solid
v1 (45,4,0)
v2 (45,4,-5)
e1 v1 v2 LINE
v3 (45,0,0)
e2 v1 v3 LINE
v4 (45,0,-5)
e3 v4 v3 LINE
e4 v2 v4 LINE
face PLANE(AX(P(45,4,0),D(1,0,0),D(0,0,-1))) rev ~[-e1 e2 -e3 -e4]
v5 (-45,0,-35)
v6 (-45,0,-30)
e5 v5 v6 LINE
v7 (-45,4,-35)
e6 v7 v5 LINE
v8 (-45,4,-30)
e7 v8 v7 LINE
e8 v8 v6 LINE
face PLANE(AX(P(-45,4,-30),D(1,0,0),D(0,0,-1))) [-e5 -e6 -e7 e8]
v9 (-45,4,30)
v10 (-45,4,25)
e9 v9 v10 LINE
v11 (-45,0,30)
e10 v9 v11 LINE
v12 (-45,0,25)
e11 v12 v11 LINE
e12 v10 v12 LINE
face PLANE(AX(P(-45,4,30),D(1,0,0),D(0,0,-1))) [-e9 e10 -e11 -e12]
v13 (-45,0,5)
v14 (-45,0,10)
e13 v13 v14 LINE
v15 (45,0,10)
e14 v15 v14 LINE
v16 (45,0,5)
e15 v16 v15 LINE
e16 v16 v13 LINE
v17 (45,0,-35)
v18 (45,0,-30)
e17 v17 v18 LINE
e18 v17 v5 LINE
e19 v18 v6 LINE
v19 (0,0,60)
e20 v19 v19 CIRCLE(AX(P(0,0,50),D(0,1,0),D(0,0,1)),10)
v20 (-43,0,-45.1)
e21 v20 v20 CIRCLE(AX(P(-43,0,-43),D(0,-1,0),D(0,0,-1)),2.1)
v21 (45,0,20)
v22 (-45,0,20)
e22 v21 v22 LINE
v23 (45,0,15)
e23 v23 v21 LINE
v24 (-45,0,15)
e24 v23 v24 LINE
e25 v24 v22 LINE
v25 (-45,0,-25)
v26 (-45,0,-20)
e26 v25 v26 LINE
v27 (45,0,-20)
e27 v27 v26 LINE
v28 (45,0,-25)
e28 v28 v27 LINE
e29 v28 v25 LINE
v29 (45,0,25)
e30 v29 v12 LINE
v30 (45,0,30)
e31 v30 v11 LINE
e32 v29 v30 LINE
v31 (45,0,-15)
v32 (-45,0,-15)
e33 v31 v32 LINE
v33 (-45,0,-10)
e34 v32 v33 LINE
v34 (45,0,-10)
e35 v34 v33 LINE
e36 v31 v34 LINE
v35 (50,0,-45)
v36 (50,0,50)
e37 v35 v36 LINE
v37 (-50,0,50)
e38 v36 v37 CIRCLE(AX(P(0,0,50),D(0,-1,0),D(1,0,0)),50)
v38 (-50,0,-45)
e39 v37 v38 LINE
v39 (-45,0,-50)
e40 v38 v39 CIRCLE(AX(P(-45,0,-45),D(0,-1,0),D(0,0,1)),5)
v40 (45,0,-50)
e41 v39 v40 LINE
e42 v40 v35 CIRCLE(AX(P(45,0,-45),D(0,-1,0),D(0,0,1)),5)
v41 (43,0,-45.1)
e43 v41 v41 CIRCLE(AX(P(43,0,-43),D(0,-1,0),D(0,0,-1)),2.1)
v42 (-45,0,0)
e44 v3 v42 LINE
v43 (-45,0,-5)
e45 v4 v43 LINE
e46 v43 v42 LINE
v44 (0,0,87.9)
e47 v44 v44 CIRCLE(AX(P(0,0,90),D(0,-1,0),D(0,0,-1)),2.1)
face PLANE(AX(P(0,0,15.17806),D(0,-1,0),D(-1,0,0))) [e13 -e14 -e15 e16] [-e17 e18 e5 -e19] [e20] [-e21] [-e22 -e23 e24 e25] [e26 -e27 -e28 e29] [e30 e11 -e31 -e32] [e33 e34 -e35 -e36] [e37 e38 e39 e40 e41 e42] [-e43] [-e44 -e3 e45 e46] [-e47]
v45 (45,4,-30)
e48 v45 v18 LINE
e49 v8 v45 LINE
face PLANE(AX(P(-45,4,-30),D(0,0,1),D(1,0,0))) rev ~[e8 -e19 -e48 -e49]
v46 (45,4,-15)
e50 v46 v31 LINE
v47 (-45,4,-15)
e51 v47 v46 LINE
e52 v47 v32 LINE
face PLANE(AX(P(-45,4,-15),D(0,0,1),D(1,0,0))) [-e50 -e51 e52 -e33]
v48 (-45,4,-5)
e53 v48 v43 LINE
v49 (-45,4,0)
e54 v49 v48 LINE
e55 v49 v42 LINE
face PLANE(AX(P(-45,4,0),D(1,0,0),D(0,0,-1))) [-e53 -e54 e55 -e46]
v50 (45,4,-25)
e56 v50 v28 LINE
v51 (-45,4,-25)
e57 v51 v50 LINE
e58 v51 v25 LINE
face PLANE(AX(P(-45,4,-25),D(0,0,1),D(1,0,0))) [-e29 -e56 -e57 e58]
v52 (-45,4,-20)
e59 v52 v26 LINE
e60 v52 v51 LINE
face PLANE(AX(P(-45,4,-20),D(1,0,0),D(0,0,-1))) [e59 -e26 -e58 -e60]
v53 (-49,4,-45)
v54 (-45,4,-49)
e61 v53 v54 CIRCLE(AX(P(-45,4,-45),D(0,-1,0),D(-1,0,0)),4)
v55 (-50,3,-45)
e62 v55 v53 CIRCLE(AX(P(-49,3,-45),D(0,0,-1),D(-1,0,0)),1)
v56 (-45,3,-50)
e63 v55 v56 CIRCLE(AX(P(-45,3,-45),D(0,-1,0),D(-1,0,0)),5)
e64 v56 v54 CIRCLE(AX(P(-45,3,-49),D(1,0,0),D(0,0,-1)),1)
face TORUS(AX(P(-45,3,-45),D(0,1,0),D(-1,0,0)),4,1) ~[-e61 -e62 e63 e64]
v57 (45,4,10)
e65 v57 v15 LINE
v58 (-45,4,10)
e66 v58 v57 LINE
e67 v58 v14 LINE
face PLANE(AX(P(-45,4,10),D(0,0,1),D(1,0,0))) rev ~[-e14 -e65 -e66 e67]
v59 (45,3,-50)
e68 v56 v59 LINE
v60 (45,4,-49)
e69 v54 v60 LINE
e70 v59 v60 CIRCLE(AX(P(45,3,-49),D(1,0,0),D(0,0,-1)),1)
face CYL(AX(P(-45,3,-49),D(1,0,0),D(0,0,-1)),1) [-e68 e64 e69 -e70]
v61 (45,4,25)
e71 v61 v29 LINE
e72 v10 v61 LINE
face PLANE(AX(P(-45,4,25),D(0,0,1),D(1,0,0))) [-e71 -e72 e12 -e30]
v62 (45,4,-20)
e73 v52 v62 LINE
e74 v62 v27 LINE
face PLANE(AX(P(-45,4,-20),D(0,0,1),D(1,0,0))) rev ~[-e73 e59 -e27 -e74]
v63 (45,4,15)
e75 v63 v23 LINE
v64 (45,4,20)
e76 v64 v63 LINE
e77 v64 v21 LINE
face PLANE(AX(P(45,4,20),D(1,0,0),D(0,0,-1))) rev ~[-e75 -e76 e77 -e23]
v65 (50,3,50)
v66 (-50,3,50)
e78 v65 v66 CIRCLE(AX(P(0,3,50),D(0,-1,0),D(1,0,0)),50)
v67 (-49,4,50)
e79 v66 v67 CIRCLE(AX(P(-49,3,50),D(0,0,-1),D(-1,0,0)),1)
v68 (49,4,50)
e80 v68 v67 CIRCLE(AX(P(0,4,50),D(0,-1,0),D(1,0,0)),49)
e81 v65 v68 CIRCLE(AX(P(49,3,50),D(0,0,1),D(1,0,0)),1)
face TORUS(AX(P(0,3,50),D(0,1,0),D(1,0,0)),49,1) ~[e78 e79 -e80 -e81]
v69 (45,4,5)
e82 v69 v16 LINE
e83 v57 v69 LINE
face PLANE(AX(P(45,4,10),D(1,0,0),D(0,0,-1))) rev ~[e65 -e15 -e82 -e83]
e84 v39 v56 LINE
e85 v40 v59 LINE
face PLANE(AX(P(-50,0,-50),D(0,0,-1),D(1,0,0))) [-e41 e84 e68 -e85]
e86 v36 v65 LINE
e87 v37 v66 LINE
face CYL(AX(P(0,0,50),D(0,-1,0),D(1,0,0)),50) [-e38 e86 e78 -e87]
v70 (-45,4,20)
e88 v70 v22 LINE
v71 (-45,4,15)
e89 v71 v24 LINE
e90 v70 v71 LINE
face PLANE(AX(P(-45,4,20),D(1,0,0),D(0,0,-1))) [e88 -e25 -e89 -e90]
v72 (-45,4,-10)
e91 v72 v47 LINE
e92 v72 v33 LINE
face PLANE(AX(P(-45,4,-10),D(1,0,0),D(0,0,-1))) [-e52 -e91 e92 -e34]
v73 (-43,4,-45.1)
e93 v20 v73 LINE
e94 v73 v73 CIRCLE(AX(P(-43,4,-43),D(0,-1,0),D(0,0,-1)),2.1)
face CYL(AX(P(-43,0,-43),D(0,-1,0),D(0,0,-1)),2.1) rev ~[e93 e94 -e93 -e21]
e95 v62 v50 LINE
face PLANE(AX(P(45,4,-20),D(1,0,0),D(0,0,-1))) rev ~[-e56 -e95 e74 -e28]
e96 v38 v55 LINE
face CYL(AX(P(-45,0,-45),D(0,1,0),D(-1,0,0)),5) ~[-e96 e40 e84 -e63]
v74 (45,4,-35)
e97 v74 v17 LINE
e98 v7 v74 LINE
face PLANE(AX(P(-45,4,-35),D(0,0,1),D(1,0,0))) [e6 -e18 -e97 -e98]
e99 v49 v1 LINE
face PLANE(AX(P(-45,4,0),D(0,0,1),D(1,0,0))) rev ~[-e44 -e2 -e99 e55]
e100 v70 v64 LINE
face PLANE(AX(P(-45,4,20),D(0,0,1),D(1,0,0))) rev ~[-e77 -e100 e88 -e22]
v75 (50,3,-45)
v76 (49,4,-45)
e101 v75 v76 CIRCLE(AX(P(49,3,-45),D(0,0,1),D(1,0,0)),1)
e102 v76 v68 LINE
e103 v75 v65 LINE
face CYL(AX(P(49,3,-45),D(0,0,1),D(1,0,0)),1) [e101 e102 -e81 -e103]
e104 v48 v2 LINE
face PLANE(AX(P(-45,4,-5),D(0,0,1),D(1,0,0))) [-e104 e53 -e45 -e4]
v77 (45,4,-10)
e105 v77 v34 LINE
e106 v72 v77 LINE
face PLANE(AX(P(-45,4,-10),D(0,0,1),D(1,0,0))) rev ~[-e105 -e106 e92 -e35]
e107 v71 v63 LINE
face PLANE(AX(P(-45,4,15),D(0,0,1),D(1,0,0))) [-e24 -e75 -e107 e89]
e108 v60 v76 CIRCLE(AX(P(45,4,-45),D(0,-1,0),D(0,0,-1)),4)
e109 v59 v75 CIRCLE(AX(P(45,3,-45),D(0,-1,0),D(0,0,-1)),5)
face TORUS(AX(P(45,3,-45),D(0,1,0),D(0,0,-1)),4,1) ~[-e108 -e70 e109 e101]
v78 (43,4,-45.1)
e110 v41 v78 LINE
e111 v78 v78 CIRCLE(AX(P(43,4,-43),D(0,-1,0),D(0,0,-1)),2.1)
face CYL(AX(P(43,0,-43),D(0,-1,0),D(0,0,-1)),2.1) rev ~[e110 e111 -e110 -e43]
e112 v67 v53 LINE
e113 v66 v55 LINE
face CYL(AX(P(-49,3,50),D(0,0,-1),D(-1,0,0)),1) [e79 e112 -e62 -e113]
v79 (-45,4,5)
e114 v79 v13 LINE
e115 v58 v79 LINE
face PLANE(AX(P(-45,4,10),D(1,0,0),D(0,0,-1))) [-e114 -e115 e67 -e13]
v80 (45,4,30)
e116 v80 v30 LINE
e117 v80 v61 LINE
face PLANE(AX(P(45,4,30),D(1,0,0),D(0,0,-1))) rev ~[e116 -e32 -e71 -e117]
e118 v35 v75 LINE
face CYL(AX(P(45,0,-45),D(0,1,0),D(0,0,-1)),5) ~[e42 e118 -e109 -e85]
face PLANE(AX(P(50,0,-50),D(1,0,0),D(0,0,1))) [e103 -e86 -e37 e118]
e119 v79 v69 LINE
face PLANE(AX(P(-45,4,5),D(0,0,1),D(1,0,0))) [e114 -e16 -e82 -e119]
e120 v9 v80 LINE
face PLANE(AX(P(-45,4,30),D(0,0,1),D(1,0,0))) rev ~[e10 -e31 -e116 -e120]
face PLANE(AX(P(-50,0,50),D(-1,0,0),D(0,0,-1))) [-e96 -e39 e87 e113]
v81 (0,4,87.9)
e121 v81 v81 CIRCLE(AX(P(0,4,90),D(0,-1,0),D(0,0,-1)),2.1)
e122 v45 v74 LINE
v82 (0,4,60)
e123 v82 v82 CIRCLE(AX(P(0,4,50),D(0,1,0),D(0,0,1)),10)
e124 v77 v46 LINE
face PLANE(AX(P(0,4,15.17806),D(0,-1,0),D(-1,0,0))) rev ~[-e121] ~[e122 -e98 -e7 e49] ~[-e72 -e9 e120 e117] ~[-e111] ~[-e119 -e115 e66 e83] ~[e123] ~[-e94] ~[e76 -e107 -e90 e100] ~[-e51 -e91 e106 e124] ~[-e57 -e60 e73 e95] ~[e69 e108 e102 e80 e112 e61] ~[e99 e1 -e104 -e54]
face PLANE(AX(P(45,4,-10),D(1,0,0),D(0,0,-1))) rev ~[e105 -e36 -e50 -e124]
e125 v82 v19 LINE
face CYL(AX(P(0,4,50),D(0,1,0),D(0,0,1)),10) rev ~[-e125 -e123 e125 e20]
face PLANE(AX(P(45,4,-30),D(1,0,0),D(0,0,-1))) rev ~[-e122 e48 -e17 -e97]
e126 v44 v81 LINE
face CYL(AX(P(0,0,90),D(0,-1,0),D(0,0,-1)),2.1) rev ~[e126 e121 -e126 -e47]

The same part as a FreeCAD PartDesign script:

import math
import FreeCAD as App
import Part
import Sketcher


def edges_at(feature, points):
    """Names of the edges that pass closest to the given points."""
    edges = feature.Shape.Edges
    near = lambda p: min(range(len(edges)), key=lambda i: edges[i].distToShape(Part.Vertex(*p))[0])
    return sorted({f"Edge{near(p) + 1}" for p in points})


def add_polygon(sketch, points):
    """Adds a closed chain of lines whose ends are joined by coincident constraints."""
    first, n = sketch.GeometryCount, len(points)
    for a, b in zip(points, points[1:] + points[:1]):
        sketch.addGeometry(Part.LineSegment(App.Vector(*a, 0), App.Vector(*b, 0)), False)
    for i in range(n):
        sketch.addConstraint(Sketcher.Constraint("Coincident", first + i, 2, first + (i + 1) % n, 1))

doc = App.newDocument("Part")
body = doc.addObject("PartDesign::Body", "Body")

# Sketch on XZ plane
sketch1 = body.newObject("Sketcher::SketchObject", "Sketch")
sketch1.AttachmentSupport = (doc.getObject("XZ_Plane"), [""])
sketch1.MapMode = "FlatFace"
sketch1.addGeometry(Part.LineSegment(App.Vector(-50, -50, 0), App.Vector(-50, 50, 0)), False)
sketch1.addGeometry(Part.ArcOfCircle(Part.Circle(App.Vector(0, 50, 0), App.Vector(0, 0, 1), 50), math.radians(0), math.radians(180)), False)
sketch1.addGeometry(Part.LineSegment(App.Vector(50, 50, 0), App.Vector(50, -50, 0)), False)
sketch1.addGeometry(Part.LineSegment(App.Vector(50, -50, 0), App.Vector(-50, -50, 0)), False)
sketch1.addConstraint(Sketcher.Constraint("Tangent", 0, 2, 1, 2))
sketch1.addConstraint(Sketcher.Constraint("Tangent", 1, 1, 2, 1))
sketch1.addConstraint(Sketcher.Constraint("Coincident", 2, 2, 3, 1))
sketch1.addConstraint(Sketcher.Constraint("Coincident", 3, 2, 0, 1))
sketch1.addConstraint(Sketcher.Constraint("Vertical", 0))
sketch1.addConstraint(Sketcher.Constraint("Vertical", 2))
sketch1.addConstraint(Sketcher.Constraint("Horizontal", 3))
sketch1.addConstraint(Sketcher.Constraint("Symmetric", 0, 2, 2, 2, -1, 1))
sketch1.addConstraint(Sketcher.Constraint("Equal", 3, 0))
sketch1.addConstraint(Sketcher.Constraint("Radius", 1, 50.0))
pad1 = body.newObject("PartDesign::Pad", "Pad")
pad1.Profile = sketch1
pad1.Length = 4
pad1.Reversed = True

# Sketch on XZ plane
sketch2 = body.newObject("Sketcher::SketchObject", "Sketch001")
sketch2.AttachmentSupport = (doc.getObject("XZ_Plane"), [""])
sketch2.MapMode = "FlatFace"
sketch2.addGeometry(Part.Circle(App.Vector(0, 90, 0), App.Vector(0, 0, 1), 2.1), False)
sketch2.addGeometry(Part.Circle(App.Vector(43, -43, 0), App.Vector(0, 0, 1), 2.1), False)
sketch2.addGeometry(Part.Circle(App.Vector(-43, -43, 0), App.Vector(0, 0, 1), 2.1), False)
sketch2.addConstraint(Sketcher.Constraint("Equal", 0, 1))
sketch2.addConstraint(Sketcher.Constraint("Equal", 1, 2))
sketch2.addConstraint(Sketcher.Constraint("Symmetric", 1, 3, 2, 3, -2))
sketch2.addConstraint(Sketcher.Constraint("PointOnObject", 0, 3, -2))
sketch2.addConstraint(Sketcher.Constraint("Diameter", 0, 4.2))
sketch2.addConstraint(Sketcher.Constraint("DistanceY", -1, 1, 0, 3, 90.0))
sketch2.addConstraint(Sketcher.Constraint("DistanceX", -1, 1, 1, 3, 43.0))
sketch2.addConstraint(Sketcher.Constraint("DistanceY", 1, 3, -1, 1, 43.0))
pocket1 = body.newObject("PartDesign::Pocket", "Pocket")
pocket1.Profile = sketch2
pocket1.Length = 4

# Sketch on XZ plane
sketch3 = body.newObject("Sketcher::SketchObject", "Sketch002")
sketch3.AttachmentSupport = (doc.getObject("XZ_Plane"), [""])
sketch3.MapMode = "FlatFace"
sketch3.AttachmentOffset = App.Placement(App.Vector(0, 0, -4), App.Rotation())
sketch3.addGeometry(Part.Circle(App.Vector(0, 50, 0), App.Vector(0, 0, 1), 10), False)
sketch3.addConstraint(Sketcher.Constraint("PointOnObject", 0, 3, -2))
sketch3.addConstraint(Sketcher.Constraint("Diameter", 0, 20.0))
sketch3.addConstraint(Sketcher.Constraint("DistanceY", -1, 1, 0, 3, 50.0))
pocket2 = body.newObject("PartDesign::Pocket", "Pocket001")
pocket2.Profile = sketch3
pocket2.Length = 4
pocket2.Reversed = True

# Sketch on XZ plane
sketch4 = body.newObject("Sketcher::SketchObject", "Sketch003")
sketch4.AttachmentSupport = (doc.getObject("XZ_Plane"), [""])
sketch4.MapMode = "FlatFace"
sketch4.AttachmentOffset = App.Placement(App.Vector(0, 0, -4), App.Rotation())
add_polygon(sketch4, [(-45, -35), (-45, -30), (45, -30), (45, -35)])  # lines 0-3
add_polygon(sketch4, [(-45, -25), (-45, -20), (45, -20), (45, -25)])  # lines 4-7
add_polygon(sketch4, [(-45, -15), (-45, -10), (45, -10), (45, -15)])  # lines 8-11
add_polygon(sketch4, [(-45, -5), (-45, 0), (45, 0), (45, -5)])  # lines 12-15
add_polygon(sketch4, [(-45, 5), (-45, 10), (45, 10), (45, 5)])  # lines 16-19
add_polygon(sketch4, [(-45, 15), (-45, 20), (45, 20), (45, 15)])  # lines 20-23
add_polygon(sketch4, [(-45, 25), (-45, 30), (45, 30), (45, 25)])  # lines 24-27
sketch4.addConstraint(Sketcher.Constraint("Vertical", 0))
sketch4.addConstraint(Sketcher.Constraint("Horizontal", 1))
sketch4.addConstraint(Sketcher.Constraint("Vertical", 2))
sketch4.addConstraint(Sketcher.Constraint("Horizontal", 3))
sketch4.addConstraint(Sketcher.Constraint("Vertical", 4))
sketch4.addConstraint(Sketcher.Constraint("Horizontal", 5))
sketch4.addConstraint(Sketcher.Constraint("Vertical", 6))
sketch4.addConstraint(Sketcher.Constraint("Horizontal", 7))
sketch4.addConstraint(Sketcher.Constraint("Vertical", 8))
sketch4.addConstraint(Sketcher.Constraint("Horizontal", 9))
sketch4.addConstraint(Sketcher.Constraint("Vertical", 10))
sketch4.addConstraint(Sketcher.Constraint("Horizontal", 11))
sketch4.addConstraint(Sketcher.Constraint("Vertical", 12))
sketch4.addConstraint(Sketcher.Constraint("Horizontal", 13))
sketch4.addConstraint(Sketcher.Constraint("Vertical", 14))
sketch4.addConstraint(Sketcher.Constraint("Horizontal", 15))
sketch4.addConstraint(Sketcher.Constraint("Vertical", 16))
sketch4.addConstraint(Sketcher.Constraint("Horizontal", 17))
sketch4.addConstraint(Sketcher.Constraint("Vertical", 18))
sketch4.addConstraint(Sketcher.Constraint("Horizontal", 19))
sketch4.addConstraint(Sketcher.Constraint("Vertical", 20))
sketch4.addConstraint(Sketcher.Constraint("Horizontal", 21))
sketch4.addConstraint(Sketcher.Constraint("Vertical", 22))
sketch4.addConstraint(Sketcher.Constraint("Horizontal", 23))
sketch4.addConstraint(Sketcher.Constraint("Vertical", 24))
sketch4.addConstraint(Sketcher.Constraint("Horizontal", 25))
sketch4.addConstraint(Sketcher.Constraint("Vertical", 26))
sketch4.addConstraint(Sketcher.Constraint("Horizontal", 27))
sketch4.addConstraint(Sketcher.Constraint("Symmetric", 12, 2, 13, 2, -1, 1))
sketch4.addConstraint(Sketcher.Constraint("Symmetric", 9, 2, 16, 2, -1, 1))
sketch4.addConstraint(Sketcher.Constraint("Symmetric", 15, 2, 18, 2, -1, 1))
sketch4.addConstraint(Sketcher.Constraint("Symmetric", 5, 2, 20, 2, -1, 1))
sketch4.addConstraint(Sketcher.Constraint("Symmetric", 11, 2, 22, 2, -1, 1))
sketch4.addConstraint(Sketcher.Constraint("Symmetric", 1, 2, 24, 2, -1, 1))
sketch4.addConstraint(Sketcher.Constraint("Symmetric", 7, 2, 26, 2, -1, 1))
sketch4.addConstraint(Sketcher.Constraint("Vertical", 3, 2, 4, 2))
sketch4.addConstraint(Sketcher.Constraint("Vertical", 2, 2, 5, 2))
sketch4.addConstraint(Sketcher.Constraint("Vertical", 7, 2, 8, 2))
sketch4.addConstraint(Sketcher.Constraint("Vertical", 6, 2, 9, 2))
sketch4.addConstraint(Sketcher.Constraint("Vertical", 11, 2, 12, 2))
sketch4.addConstraint(Sketcher.Constraint("Vertical", 10, 2, 13, 2))
sketch4.addConstraint(Sketcher.Constraint("Equal", 2, 4))
sketch4.addConstraint(Sketcher.Constraint("Equal", 6, 8))
sketch4.addConstraint(Sketcher.Constraint("Equal", 10, 12))
sketch4.addConstraint(Sketcher.Constraint("Equal", 14, 16))
sketch4.addConstraint(Sketcher.Constraint("Equal", 18, 20))
sketch4.addConstraint(Sketcher.Constraint("Equal", 22, 24))
sketch4.addConstraint(Sketcher.Constraint("DistanceX", 1, 1, 1, 2, 90.0))
sketch4.addConstraint(Sketcher.Constraint("DistanceY", 0, 1, 0, 2, 5.0))
pocket3 = body.newObject("PartDesign::Pocket", "Pocket002")
pocket3.Profile = sketch4
pocket3.Length = 5
pocket3.Reversed = True
doc.recompute()

fillet = body.newObject("PartDesign::Fillet", "Fillet")
fillet.Base = (pocket3, edges_at(pocket3, [(-50, 2, -50), (50, 2, -50)]))
fillet.Radius = 5
doc.recompute()

fillet2 = body.newObject("PartDesign::Fillet", "Fillet001")
fillet2.Base = (fillet, edges_at(fillet, [
    (0, 4, 100),
    (0, 4, -50),
    (-50, 4, 2.5),
    (-48.536, 4, -48.536),
    (48.536, 4, -48.536),
    (50, 4, 2.5),
]))
fillet2.Radius = 1

doc.recompute()
